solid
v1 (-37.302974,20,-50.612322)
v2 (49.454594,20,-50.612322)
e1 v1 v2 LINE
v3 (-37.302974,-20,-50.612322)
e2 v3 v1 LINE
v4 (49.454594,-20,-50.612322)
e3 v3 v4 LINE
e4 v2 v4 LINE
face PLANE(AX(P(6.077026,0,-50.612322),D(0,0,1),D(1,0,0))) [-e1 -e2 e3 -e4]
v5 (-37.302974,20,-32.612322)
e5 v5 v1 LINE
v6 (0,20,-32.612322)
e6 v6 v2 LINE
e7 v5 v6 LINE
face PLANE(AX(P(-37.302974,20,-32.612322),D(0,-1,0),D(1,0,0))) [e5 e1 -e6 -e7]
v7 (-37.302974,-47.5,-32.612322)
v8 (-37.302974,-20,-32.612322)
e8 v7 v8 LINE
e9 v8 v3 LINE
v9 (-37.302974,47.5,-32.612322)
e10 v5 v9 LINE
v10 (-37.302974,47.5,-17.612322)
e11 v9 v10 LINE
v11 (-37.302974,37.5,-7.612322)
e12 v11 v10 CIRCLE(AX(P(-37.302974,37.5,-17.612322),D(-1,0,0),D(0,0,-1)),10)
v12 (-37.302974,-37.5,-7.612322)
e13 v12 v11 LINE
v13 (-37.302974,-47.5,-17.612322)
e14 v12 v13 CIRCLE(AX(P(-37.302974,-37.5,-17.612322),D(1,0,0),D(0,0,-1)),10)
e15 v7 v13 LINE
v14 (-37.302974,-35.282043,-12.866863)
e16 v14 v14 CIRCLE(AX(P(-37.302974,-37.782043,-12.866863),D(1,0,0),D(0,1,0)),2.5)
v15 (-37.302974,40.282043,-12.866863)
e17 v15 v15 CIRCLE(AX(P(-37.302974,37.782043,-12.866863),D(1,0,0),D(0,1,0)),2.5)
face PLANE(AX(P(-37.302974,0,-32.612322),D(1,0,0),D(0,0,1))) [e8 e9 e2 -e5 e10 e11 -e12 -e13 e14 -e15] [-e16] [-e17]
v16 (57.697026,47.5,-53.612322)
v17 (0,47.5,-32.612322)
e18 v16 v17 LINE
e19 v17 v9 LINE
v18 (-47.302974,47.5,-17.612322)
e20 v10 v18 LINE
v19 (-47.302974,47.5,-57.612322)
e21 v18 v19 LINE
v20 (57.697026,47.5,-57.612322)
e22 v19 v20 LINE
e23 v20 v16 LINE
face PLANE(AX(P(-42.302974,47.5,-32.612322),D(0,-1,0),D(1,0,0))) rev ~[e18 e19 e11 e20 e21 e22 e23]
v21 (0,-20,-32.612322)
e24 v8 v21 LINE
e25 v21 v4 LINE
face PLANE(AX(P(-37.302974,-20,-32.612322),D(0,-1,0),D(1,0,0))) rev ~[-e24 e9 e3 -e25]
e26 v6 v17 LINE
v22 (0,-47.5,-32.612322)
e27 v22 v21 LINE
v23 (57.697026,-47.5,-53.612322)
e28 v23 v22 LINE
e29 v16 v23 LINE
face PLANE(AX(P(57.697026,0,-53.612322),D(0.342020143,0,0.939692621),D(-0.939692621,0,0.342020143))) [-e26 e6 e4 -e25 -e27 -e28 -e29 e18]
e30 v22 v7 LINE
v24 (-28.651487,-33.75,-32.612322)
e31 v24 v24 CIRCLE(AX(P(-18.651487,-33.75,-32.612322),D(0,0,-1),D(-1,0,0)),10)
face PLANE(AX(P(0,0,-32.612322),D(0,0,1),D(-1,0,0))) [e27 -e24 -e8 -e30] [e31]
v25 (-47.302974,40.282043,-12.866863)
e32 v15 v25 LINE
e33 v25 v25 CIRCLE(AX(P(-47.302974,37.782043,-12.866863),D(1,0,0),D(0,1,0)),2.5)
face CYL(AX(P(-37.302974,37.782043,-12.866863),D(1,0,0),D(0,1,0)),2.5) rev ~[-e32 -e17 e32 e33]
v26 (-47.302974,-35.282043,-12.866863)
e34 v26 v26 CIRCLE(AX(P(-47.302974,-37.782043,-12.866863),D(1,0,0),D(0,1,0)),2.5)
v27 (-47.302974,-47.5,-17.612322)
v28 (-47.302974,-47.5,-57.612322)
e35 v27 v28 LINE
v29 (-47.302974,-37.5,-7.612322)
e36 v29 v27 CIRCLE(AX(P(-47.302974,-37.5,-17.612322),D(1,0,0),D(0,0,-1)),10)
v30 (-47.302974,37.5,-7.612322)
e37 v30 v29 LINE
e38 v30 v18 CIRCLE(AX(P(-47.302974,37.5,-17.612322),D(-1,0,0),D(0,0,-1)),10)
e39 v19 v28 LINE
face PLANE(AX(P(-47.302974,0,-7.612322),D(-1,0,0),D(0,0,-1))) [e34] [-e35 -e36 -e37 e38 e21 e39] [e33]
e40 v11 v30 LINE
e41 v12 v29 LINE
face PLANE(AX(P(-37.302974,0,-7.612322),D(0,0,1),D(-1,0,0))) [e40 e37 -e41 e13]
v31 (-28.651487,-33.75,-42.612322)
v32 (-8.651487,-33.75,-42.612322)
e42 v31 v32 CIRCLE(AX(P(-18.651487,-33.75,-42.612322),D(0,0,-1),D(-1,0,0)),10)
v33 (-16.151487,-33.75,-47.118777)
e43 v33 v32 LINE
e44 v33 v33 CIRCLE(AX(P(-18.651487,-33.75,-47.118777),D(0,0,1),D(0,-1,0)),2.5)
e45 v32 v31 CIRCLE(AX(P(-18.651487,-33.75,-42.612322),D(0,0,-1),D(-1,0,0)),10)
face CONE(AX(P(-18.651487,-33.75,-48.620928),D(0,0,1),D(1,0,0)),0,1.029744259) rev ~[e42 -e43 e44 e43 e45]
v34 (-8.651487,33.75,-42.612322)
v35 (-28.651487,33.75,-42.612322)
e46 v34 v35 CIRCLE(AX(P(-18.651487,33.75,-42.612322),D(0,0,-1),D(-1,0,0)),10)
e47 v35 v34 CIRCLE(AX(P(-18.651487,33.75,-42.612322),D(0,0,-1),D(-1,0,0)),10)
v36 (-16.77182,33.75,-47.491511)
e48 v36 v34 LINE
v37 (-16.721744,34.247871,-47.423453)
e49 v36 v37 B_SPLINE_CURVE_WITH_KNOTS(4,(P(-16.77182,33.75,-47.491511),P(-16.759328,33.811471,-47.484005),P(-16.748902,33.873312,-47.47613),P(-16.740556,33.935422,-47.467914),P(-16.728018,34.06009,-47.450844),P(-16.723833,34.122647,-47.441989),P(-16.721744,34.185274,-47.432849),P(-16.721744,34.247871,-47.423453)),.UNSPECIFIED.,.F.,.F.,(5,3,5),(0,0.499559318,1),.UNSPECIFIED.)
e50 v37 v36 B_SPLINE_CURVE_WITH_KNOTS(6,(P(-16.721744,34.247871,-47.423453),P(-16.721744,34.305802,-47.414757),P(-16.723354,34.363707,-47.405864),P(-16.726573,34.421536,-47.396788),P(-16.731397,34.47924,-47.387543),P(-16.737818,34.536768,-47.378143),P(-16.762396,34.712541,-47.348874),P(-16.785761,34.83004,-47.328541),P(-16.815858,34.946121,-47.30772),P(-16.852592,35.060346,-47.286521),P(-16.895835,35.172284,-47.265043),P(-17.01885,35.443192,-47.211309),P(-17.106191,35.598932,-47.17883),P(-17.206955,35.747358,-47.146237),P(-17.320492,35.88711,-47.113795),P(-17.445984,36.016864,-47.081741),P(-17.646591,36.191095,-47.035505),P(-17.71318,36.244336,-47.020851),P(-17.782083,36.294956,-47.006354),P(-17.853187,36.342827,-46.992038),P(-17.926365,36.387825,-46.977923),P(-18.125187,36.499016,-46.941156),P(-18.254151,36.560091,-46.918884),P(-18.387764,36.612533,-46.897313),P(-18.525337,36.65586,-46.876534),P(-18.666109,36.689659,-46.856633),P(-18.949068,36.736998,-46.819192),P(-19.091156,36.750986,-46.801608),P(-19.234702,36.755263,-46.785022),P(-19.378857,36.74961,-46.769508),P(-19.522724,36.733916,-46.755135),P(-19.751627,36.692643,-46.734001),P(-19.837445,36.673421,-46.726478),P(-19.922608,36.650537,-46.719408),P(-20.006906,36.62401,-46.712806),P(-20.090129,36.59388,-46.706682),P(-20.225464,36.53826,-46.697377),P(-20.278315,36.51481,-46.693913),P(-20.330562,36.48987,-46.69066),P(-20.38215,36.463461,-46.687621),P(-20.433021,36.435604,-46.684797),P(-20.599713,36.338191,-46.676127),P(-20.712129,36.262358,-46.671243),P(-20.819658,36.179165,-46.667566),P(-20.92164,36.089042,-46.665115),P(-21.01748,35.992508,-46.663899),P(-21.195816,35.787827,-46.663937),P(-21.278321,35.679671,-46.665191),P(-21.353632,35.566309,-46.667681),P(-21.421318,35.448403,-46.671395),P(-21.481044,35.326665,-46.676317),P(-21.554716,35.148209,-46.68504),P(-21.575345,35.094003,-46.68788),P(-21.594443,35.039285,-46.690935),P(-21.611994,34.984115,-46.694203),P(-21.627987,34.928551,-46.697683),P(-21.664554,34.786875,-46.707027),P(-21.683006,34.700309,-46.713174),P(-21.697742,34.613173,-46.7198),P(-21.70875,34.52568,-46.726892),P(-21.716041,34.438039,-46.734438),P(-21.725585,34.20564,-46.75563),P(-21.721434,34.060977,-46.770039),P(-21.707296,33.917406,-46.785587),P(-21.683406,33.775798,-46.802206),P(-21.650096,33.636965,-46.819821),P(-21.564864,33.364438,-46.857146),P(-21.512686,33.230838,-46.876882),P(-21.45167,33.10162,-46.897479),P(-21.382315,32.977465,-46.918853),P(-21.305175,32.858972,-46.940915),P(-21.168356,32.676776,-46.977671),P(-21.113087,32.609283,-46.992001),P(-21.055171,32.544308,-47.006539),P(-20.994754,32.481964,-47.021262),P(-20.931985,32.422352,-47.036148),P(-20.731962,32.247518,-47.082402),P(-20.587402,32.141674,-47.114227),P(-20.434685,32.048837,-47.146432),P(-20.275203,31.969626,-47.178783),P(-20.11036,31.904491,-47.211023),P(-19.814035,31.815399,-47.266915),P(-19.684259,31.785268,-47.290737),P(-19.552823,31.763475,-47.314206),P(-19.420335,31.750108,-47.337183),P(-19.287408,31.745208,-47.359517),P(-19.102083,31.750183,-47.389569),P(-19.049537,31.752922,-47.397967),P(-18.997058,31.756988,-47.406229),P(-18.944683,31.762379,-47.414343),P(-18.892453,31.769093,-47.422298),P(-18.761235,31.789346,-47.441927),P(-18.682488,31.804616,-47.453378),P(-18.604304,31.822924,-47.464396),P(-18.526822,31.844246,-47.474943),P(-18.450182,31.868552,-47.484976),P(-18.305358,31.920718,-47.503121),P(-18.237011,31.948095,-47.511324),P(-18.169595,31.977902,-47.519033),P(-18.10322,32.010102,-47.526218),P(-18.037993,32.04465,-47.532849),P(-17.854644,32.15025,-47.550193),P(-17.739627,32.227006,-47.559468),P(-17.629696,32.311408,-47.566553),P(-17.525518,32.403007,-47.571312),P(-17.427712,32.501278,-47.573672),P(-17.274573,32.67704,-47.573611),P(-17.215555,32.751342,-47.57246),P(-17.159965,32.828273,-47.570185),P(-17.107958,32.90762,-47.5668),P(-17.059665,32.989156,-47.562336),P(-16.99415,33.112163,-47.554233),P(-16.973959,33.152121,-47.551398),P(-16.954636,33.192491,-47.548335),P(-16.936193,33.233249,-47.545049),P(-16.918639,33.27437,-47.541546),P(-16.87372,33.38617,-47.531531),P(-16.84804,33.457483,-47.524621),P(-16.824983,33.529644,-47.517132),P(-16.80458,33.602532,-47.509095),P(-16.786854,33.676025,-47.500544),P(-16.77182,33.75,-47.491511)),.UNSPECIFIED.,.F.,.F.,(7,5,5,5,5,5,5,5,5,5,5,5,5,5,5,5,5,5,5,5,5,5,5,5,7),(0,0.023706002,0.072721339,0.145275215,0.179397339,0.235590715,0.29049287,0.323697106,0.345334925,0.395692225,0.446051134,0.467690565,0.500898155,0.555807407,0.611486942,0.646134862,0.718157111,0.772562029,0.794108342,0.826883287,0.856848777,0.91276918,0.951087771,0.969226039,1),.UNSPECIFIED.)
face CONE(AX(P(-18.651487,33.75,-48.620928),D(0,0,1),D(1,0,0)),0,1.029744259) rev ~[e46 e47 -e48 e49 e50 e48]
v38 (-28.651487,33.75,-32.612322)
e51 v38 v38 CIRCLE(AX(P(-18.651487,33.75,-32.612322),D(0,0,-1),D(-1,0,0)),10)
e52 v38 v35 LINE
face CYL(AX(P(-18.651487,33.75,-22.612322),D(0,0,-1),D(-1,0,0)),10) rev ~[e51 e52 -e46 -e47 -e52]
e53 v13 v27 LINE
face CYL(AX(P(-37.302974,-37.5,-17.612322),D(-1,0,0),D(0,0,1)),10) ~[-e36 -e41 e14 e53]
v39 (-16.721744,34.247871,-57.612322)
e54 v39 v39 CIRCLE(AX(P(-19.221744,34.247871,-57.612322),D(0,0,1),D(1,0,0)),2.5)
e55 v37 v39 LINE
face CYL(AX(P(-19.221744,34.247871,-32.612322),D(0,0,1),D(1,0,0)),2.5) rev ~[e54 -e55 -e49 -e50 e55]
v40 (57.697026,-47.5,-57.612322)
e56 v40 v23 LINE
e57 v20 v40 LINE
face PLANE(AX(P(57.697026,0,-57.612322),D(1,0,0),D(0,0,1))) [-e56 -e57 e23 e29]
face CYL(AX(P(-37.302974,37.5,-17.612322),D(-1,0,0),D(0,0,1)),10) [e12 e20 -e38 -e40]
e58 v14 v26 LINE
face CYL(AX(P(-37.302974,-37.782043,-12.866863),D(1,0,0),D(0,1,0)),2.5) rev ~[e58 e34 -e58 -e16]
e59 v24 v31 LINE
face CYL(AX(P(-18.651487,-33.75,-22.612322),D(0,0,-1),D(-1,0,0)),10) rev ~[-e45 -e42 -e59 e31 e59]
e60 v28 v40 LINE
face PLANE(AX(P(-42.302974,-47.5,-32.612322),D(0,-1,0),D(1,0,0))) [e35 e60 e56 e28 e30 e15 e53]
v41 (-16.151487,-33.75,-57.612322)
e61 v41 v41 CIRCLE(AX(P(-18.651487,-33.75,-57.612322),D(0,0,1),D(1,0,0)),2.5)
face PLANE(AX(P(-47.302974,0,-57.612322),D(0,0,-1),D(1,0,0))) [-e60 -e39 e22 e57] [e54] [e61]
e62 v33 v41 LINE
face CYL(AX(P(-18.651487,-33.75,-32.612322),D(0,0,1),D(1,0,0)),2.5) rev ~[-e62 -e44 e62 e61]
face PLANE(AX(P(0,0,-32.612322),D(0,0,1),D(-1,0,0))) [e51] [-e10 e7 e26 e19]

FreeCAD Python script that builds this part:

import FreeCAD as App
import Part
import Sketcher
Q = App.Units.Quantity


def edges_at(feature, points):
    """Names of the edges that pass closest to the given points."""
    edges = feature.Shape.Edges
    near = lambda p: min(range(len(edges)), key=lambda i: edges[i].distToShape(Part.Vertex(*p))[0])
    return sorted({f"Edge{near(p) + 1}" for p in points})

doc = App.newDocument("Part")
params = doc.addObject("Spreadsheet::Sheet", "Params")
for row, (alias, value) in enumerate([
    ("sketch1_width", "10 mm"),
    ("sketch1_width2", "105 mm"),
    ("sketch1_height", "50 mm"),
    ("sketch1_height2", "4 mm"),
    ("sketch1_height3", "25 mm"),
    ("pad1_length", "95 mm"),
    ("sketch2_height", "40 mm"),
    ("sketch2_width", "86.76 mm"),
    ("pocket1_length", "18 mm"),
    ("fillet_radius", "10 mm"),
    ("sketch3_diameter", "5 mm"),
    ("sketch4_diameter", "20 mm"),
    ("hole_diameter", "20 mm"),
    ("hole_depth", "10 mm"),
    ("sketch5_diameter", "5 mm"),
    ("pocket3_length", "25 mm"),
    ("sketch6_diameter", "20 mm"),
    ("hole2_diameter", "20 mm"),
    ("hole2_depth", "10 mm"),
    ("sketch7_diameter", "5 mm"),
    ("pocket4_length", "25 mm"),
], start=1):
    params.set(f"A{row}", alias)
    params.set(f"B{row}", "=" + value)
    params.setAlias(f"B{row}", alias)

body = doc.addObject("PartDesign::Body", "Body")

# Sketch on XZ plane
sketch1 = doc.addObject("Sketcher::SketchObject", "Sketch")
body.addObject(sketch1)
sketch1.AttachmentSupport = (doc.XZ_Plane, [""])
sketch1.MapMode = "FlatFace"
sketch1.addGeometry([
    Part.LineSegment(App.Vector(-37.3, -7.6, 0), App.Vector(-47.3, -7.6, 0)),  # 0
    Part.LineSegment(App.Vector(-47.3, -7.6, 0), App.Vector(-47.3, -57.6, 0)),  # 1
    Part.LineSegment(App.Vector(-47.3, -57.6, 0), App.Vector(57.7, -57.6, 0)),  # 2
    Part.LineSegment(App.Vector(57.7, -57.6, 0), App.Vector(57.7, -53.6, 0)),  # 3
    Part.LineSegment(App.Vector(57.7, -53.6, 0), App.Vector(0, -32.6, 0)),  # 4
    Part.LineSegment(App.Vector(0, -32.6, 0), App.Vector(-37.3, -32.6, 0)),  # 5
    Part.LineSegment(App.Vector(-37.3, -32.6, 0), App.Vector(-37.3, -7.6, 0)),  # 6
], False)
sketch1.addConstraint([
    Sketcher.Constraint("Coincident", 0, 2, 1, 1),
    Sketcher.Constraint("Coincident", 1, 2, 2, 1),
    Sketcher.Constraint("Coincident", 2, 2, 3, 1),
    Sketcher.Constraint("Coincident", 3, 2, 4, 1),
    Sketcher.Constraint("Coincident", 4, 2, 5, 1),
    Sketcher.Constraint("Coincident", 5, 2, 6, 1),
    Sketcher.Constraint("Coincident", 6, 2, 0, 1),
    Sketcher.Constraint("Horizontal", 0),
    Sketcher.Constraint("Vertical", 1),
    Sketcher.Constraint("Horizontal", 2),
    Sketcher.Constraint("Vertical", 3),
    Sketcher.Constraint("Horizontal", 5),
    Sketcher.Constraint("Vertical", 6),
    Sketcher.Constraint("PointOnObject", 4, 2, -2),
    Sketcher.Constraint("DistanceX", 0, 2, 0, 1, Q("10 mm")),
    Sketcher.Constraint("DistanceX", 2, 1, 2, 2, Q("105 mm")),
    Sketcher.Constraint("DistanceY", 1, 2, 1, 1, Q("50 mm")),
    Sketcher.Constraint("DistanceY", 3, 1, 3, 2, Q("4 mm")),
    Sketcher.Constraint("DistanceY", 6, 1, 6, 2, Q("25 mm")),
    Sketcher.Constraint("Angle", 4, Q("160 deg")),
    Sketcher.Constraint("DistanceY", 0, 2, -1, 1, Q("7.612322 mm")),
])
sketch1.setExpression("Constraints[14]", "Params.sketch1_width")
sketch1.setExpression("Constraints[15]", "Params.sketch1_width2")
sketch1.setExpression("Constraints[16]", "Params.sketch1_height")
sketch1.setExpression("Constraints[17]", "Params.sketch1_height2")
sketch1.setExpression("Constraints[18]", "Params.sketch1_height3")
pad1 = doc.addObject("PartDesign::Pad", "Pad")
body.addObject(pad1)
pad1.Profile = sketch1
pad1.setExpression("Length", "Params.pad1_length")
pad1.Midplane = True

# Sketch on XY plane
sketch2 = doc.addObject("Sketcher::SketchObject", "Sketch001")
body.addObject(sketch2)
sketch2.AttachmentSupport = (doc.XY_Plane, [""])
sketch2.MapMode = "FlatFace"
sketch2.AttachmentOffset = App.Placement(App.Vector(0, 0, -32.612322), App.Rotation())
sketch2.addGeometry([
    Part.LineSegment(App.Vector(-37, 20, 0), App.Vector(-37, -20, 0)),
    Part.LineSegment(App.Vector(-37, -20, 0), App.Vector(49, -20, 0)),
    Part.LineSegment(App.Vector(49, -20, 0), App.Vector(49, 20, 0)),
    Part.LineSegment(App.Vector(49, 20, 0), App.Vector(-37, 20, 0)),
], False)
sketch2.addConstraint([
    Sketcher.Constraint("Coincident", 0, 2, 1, 1),
    Sketcher.Constraint("Coincident", 1, 2, 2, 1),
    Sketcher.Constraint("Coincident", 2, 2, 3, 1),
    Sketcher.Constraint("Coincident", 3, 2, 0, 1),
    Sketcher.Constraint("Vertical", 0),
    Sketcher.Constraint("Horizontal", 1),
    Sketcher.Constraint("Vertical", 2),
    Sketcher.Constraint("Horizontal", 3),
    Sketcher.Constraint("DistanceY", 0, 2, 0, 1, Q("40 mm")),
    Sketcher.Constraint("DistanceY", 0, 2, -1, 1, Q("20 mm")),
    Sketcher.Constraint("DistanceX", 1, 1, 1, 2, Q("86.76 mm")),
    Sketcher.Constraint("DistanceX", 0, 2, -1, 1, Q("37.302974 mm")),
])
sketch2.setExpression("Constraints[8]", "Params.sketch2_height")
sketch2.setExpression("Constraints[10]", "Params.sketch2_width")
pocket1 = doc.addObject("PartDesign::Pocket", "Pocket")
body.addObject(pocket1)
pocket1.Profile = sketch2
pocket1.setExpression("Length", "Params.pocket1_length")
doc.recompute()

fillet = doc.addObject("PartDesign::Fillet", "Fillet")
body.addObject(fillet)
fillet.Base = (pocket1, edges_at(pocket1, [(-42.303, -47.5, -7.612), (-42.303, 47.5, -7.612)]))
fillet.setExpression("Radius", "Params.fillet_radius")

# Sketch on YZ plane
sketch3 = doc.addObject("Sketcher::SketchObject", "Sketch002")
body.addObject(sketch3)
sketch3.AttachmentSupport = (doc.YZ_Plane, [""])
sketch3.MapMode = "FlatFace"
sketch3.AttachmentOffset = App.Placement(App.Vector(0, 0, -37.302974), App.Rotation())
sketch3.addGeometry([
    Part.Circle(App.Vector(-37.8, -12.9, 0), App.Vector(0, 0, 1), 2.5),
    Part.Circle(App.Vector(37.8, -12.9, 0), App.Vector(0, 0, 1), 2.5),
], False)
sketch3.addConstraint([
    Sketcher.Constraint("Equal", 0, 1),
    Sketcher.Constraint("Symmetric", 0, 3, 1, 3, -2),
    Sketcher.Constraint("Diameter", 0, Q("5 mm")),
    Sketcher.Constraint("DistanceX", 0, 3, -1, 1, Q("37.782043 mm")),
    Sketcher.Constraint("DistanceY", 0, 3, -1, 1, Q("12.866863 mm")),
])
sketch3.setExpression("Constraints[2]", "Params.sketch3_diameter")
pocket2 = doc.addObject("PartDesign::Pocket", "Pocket001")
body.addObject(pocket2)
pocket2.Profile = sketch3
pocket2.Type = "ThroughAll"

# Sketch on XY plane
sketch4 = doc.addObject("Sketcher::SketchObject", "Sketch003")
body.addObject(sketch4)
sketch4.AttachmentSupport = (doc.XY_Plane, [""])
sketch4.MapMode = "FlatFace"
sketch4.AttachmentOffset = App.Placement(App.Vector(0, 0, -32.612322), App.Rotation())
sketch4.addGeometry(Part.Circle(App.Vector(-19, -34, 0), App.Vector(0, 0, 1), 10), False)
sketch4.addConstraint([
    Sketcher.Constraint("Diameter", 0, Q("20 mm")),
    Sketcher.Constraint("DistanceY", 0, 3, -1, 1, Q("33.75 mm")),
    Sketcher.Constraint("DistanceX", 0, 3, -1, 1, Q("18.651487 mm")),
])
sketch4.setExpression("Constraints[0]", "Params.sketch4_diameter")
doc.recompute()
hole = doc.addObject("PartDesign::Hole", "Hole")
body.addObject(hole)
hole.Profile = sketch4
hole.ThreadType = "None"
hole.setExpression("Diameter", "Params.hole_diameter")
hole.DepthType = "Dimension"
hole.setExpression("Depth", "Params.hole_depth")
hole.DrillPoint = "Angled"
hole.DrillPointAngle = 118

# Sketch on XY plane
sketch5 = doc.addObject("Sketcher::SketchObject", "Sketch004")
body.addObject(sketch5)
sketch5.AttachmentSupport = (doc.XY_Plane, [""])
sketch5.MapMode = "FlatFace"
sketch5.AttachmentOffset = App.Placement(App.Vector(0, 0, -32.612322), App.Rotation())
sketch5.addGeometry(Part.Circle(App.Vector(-18.7, -33.8, 0), App.Vector(0, 0, 1), 2.5), False)
sketch5.addConstraint([
    Sketcher.Constraint("Diameter", 0, Q("5 mm")),
    Sketcher.Constraint("DistanceY", 0, 3, -1, 1, Q("33.75 mm")),
    Sketcher.Constraint("DistanceX", 0, 3, -1, 1, Q("18.651487 mm")),
])
sketch5.setExpression("Constraints[0]", "Params.sketch5_diameter")
pocket3 = doc.addObject("PartDesign::Pocket", "Pocket002")
body.addObject(pocket3)
pocket3.Profile = sketch5
pocket3.setExpression("Length", "Params.pocket3_length")

# Sketch on XY plane
sketch6 = doc.addObject("Sketcher::SketchObject", "Sketch005")
body.addObject(sketch6)
sketch6.AttachmentSupport = (doc.XY_Plane, [""])
sketch6.MapMode = "FlatFace"
sketch6.AttachmentOffset = App.Placement(App.Vector(0, 0, -32.612322), App.Rotation())
sketch6.addGeometry(Part.Circle(App.Vector(-19, 34, 0), App.Vector(0, 0, 1), 10), False)
sketch6.addConstraint([
    Sketcher.Constraint("Diameter", 0, Q("20 mm")),
    Sketcher.Constraint("DistanceY", -1, 1, 0, 3, Q("33.75 mm")),
    Sketcher.Constraint("DistanceX", 0, 3, -1, 1, Q("18.651487 mm")),
])
sketch6.setExpression("Constraints[0]", "Params.sketch6_diameter")
doc.recompute()
hole2 = doc.addObject("PartDesign::Hole", "Hole001")
body.addObject(hole2)
hole2.Profile = sketch6
hole2.ThreadType = "None"
hole2.setExpression("Diameter", "Params.hole2_diameter")
hole2.DepthType = "Dimension"
hole2.setExpression("Depth", "Params.hole2_depth")
hole2.DrillPoint = "Angled"
hole2.DrillPointAngle = 118

# Sketch on XY plane
sketch7 = doc.addObject("Sketcher::SketchObject", "Sketch006")
body.addObject(sketch7)
sketch7.AttachmentSupport = (doc.XY_Plane, [""])
sketch7.MapMode = "FlatFace"
sketch7.AttachmentOffset = App.Placement(App.Vector(0, 0, -32.612322), App.Rotation())
sketch7.addGeometry(Part.Circle(App.Vector(-19.2, 34.2, 0), App.Vector(0, 0, 1), 2.5), False)
sketch7.addConstraint([
    Sketcher.Constraint("Diameter", 0, Q("5 mm")),
    Sketcher.Constraint("DistanceY", -1, 1, 0, 3, Q("34.247871 mm")),
    Sketcher.Constraint("DistanceX", 0, 3, -1, 1, Q("19.221744 mm")),
])
sketch7.setExpression("Constraints[0]", "Params.sketch7_diameter")
pocket4 = doc.addObject("PartDesign::Pocket", "Pocket003")
body.addObject(pocket4)
pocket4.Profile = sketch7
pocket4.setExpression("Length", "Params.pocket4_length")

doc.recompute()
